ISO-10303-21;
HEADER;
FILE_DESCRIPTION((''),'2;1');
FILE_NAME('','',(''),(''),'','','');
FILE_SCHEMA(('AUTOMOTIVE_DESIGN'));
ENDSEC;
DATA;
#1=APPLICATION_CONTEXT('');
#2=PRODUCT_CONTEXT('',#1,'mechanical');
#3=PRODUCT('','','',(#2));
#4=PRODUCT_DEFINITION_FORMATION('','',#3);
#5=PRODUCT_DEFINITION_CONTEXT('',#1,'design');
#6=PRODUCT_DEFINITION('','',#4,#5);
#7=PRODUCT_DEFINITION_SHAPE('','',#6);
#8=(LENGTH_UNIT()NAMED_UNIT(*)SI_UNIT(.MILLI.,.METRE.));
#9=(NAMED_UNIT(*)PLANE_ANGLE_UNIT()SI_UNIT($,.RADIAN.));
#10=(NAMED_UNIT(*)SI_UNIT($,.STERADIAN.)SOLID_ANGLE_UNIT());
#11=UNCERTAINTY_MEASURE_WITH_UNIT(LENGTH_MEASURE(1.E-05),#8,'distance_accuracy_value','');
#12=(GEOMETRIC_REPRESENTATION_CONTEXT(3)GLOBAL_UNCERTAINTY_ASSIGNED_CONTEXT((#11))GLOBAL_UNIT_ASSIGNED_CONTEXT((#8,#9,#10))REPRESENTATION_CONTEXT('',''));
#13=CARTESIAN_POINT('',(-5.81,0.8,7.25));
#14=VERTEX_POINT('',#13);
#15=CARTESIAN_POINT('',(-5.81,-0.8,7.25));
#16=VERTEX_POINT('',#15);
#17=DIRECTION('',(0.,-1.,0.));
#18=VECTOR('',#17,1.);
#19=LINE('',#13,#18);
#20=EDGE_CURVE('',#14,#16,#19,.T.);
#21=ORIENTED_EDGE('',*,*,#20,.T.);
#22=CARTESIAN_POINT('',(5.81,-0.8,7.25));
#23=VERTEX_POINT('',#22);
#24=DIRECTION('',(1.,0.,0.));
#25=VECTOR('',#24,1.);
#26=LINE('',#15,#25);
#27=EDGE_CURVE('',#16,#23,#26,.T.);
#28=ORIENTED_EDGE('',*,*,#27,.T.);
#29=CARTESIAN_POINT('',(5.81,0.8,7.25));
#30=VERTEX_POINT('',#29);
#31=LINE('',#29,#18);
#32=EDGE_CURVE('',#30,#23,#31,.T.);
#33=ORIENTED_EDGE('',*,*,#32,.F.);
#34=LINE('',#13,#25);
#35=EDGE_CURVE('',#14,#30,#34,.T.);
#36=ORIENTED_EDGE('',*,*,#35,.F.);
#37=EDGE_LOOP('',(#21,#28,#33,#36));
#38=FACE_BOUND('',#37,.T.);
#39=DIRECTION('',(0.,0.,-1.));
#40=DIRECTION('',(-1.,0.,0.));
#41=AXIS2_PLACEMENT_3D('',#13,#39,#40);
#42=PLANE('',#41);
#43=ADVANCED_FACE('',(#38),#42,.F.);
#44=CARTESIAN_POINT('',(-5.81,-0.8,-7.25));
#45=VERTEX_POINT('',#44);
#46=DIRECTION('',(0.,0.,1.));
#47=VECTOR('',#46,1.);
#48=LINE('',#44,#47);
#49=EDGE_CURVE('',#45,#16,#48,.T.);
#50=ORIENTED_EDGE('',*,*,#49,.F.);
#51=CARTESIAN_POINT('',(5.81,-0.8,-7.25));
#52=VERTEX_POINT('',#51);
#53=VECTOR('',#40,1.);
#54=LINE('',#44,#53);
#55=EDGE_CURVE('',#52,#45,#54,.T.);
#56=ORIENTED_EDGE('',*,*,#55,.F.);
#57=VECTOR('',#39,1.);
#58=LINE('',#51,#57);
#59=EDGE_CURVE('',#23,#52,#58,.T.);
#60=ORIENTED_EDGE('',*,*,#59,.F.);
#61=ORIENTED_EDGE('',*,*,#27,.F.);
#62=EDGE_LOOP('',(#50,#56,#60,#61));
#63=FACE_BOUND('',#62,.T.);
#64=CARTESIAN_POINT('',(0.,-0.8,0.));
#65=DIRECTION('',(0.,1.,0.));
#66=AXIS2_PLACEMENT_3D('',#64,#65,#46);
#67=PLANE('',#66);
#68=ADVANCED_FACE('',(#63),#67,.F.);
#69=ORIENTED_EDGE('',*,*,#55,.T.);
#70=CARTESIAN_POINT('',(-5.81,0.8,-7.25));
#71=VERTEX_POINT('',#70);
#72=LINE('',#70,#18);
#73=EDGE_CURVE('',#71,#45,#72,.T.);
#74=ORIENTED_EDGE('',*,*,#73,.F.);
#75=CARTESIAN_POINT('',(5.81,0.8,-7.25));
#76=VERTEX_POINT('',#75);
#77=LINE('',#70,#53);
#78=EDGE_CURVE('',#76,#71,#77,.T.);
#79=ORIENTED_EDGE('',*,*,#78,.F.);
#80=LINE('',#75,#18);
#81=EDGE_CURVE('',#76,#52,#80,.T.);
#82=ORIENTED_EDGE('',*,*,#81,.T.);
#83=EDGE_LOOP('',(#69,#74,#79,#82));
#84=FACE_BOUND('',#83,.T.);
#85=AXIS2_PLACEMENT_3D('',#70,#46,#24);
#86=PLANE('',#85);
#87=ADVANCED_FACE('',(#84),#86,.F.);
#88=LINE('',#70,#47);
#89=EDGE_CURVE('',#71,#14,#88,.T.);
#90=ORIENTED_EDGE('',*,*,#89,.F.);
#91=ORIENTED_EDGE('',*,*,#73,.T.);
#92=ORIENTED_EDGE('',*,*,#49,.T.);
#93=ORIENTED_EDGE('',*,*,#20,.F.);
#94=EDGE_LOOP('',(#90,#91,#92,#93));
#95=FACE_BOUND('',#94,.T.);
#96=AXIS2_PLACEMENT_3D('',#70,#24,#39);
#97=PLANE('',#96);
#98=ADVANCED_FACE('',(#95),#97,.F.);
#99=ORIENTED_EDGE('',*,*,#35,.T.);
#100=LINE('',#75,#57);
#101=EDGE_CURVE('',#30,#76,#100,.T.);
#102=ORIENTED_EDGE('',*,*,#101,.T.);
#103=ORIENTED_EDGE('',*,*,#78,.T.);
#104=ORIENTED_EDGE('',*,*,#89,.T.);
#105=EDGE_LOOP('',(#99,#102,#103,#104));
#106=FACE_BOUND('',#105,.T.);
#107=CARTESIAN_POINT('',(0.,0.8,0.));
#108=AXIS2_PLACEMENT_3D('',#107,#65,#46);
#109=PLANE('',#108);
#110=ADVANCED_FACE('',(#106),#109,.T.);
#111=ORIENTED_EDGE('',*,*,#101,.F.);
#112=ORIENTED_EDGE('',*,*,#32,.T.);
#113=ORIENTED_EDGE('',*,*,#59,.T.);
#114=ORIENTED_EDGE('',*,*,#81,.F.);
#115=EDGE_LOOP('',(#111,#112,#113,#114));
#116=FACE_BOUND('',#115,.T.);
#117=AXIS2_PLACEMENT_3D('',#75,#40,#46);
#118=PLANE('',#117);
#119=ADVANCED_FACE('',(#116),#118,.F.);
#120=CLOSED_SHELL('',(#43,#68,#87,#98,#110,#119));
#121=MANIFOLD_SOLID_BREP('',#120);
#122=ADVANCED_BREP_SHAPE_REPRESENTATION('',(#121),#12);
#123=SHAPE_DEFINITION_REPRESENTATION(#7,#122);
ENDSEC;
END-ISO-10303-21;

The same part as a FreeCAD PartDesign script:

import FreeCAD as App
import Part
import Sketcher
from FreeCAD import Vector


def add_polygon(sketch, points):
    """Adds a closed chain of lines whose ends are joined by coincident constraints."""
    first, n = sketch.GeometryCount, len(points)
    for a, b in zip(points, points[1:] + points[:1]):
        sketch.addGeometry(Part.LineSegment(App.Vector(*a, 0), App.Vector(*b, 0)), False)
    for i in range(n):
        sketch.addConstraint(Sketcher.Constraint("Coincident", first + i, 2, first + (i + 1) % n, 1))

doc = App.newDocument("Part")
body = doc.addObject("PartDesign::Body", "Body")

# Sketch on XZ plane
sketch1 = doc.addObject("Sketcher::SketchObject", "Sketch")
body.addObject(sketch1)
sketch1.AttachmentSupport = (doc.XZ_Plane, [""])
sketch1.MapMode = "FlatFace"
add_polygon(sketch1, [(-6, -7), (-6, 7), (6, 7), (6, -7)])  # lines 0-3
sketch1.addConstraint([
    Sketcher.Constraint("Vertical", 0),
    Sketcher.Constraint("Horizontal", 1),
    Sketcher.Constraint("Vertical", 2),
    Sketcher.Constraint("Horizontal", 3),
    Sketcher.Constraint("Symmetric", 0, 2, 2, 2, -1, 1),
    Sketcher.Constraint("DistanceY", 0, 1, 0, 2, 14.5),
    Sketcher.Constraint("DistanceX", 1, 1, 1, 2, 11.62),
])
pad1 = doc.addObject("PartDesign::Pad", "Pad")
body.addObject(pad1)
pad1.Profile = sketch1
pad1.Length = 1.6
pad1.Midplane = True

doc.recompute()
